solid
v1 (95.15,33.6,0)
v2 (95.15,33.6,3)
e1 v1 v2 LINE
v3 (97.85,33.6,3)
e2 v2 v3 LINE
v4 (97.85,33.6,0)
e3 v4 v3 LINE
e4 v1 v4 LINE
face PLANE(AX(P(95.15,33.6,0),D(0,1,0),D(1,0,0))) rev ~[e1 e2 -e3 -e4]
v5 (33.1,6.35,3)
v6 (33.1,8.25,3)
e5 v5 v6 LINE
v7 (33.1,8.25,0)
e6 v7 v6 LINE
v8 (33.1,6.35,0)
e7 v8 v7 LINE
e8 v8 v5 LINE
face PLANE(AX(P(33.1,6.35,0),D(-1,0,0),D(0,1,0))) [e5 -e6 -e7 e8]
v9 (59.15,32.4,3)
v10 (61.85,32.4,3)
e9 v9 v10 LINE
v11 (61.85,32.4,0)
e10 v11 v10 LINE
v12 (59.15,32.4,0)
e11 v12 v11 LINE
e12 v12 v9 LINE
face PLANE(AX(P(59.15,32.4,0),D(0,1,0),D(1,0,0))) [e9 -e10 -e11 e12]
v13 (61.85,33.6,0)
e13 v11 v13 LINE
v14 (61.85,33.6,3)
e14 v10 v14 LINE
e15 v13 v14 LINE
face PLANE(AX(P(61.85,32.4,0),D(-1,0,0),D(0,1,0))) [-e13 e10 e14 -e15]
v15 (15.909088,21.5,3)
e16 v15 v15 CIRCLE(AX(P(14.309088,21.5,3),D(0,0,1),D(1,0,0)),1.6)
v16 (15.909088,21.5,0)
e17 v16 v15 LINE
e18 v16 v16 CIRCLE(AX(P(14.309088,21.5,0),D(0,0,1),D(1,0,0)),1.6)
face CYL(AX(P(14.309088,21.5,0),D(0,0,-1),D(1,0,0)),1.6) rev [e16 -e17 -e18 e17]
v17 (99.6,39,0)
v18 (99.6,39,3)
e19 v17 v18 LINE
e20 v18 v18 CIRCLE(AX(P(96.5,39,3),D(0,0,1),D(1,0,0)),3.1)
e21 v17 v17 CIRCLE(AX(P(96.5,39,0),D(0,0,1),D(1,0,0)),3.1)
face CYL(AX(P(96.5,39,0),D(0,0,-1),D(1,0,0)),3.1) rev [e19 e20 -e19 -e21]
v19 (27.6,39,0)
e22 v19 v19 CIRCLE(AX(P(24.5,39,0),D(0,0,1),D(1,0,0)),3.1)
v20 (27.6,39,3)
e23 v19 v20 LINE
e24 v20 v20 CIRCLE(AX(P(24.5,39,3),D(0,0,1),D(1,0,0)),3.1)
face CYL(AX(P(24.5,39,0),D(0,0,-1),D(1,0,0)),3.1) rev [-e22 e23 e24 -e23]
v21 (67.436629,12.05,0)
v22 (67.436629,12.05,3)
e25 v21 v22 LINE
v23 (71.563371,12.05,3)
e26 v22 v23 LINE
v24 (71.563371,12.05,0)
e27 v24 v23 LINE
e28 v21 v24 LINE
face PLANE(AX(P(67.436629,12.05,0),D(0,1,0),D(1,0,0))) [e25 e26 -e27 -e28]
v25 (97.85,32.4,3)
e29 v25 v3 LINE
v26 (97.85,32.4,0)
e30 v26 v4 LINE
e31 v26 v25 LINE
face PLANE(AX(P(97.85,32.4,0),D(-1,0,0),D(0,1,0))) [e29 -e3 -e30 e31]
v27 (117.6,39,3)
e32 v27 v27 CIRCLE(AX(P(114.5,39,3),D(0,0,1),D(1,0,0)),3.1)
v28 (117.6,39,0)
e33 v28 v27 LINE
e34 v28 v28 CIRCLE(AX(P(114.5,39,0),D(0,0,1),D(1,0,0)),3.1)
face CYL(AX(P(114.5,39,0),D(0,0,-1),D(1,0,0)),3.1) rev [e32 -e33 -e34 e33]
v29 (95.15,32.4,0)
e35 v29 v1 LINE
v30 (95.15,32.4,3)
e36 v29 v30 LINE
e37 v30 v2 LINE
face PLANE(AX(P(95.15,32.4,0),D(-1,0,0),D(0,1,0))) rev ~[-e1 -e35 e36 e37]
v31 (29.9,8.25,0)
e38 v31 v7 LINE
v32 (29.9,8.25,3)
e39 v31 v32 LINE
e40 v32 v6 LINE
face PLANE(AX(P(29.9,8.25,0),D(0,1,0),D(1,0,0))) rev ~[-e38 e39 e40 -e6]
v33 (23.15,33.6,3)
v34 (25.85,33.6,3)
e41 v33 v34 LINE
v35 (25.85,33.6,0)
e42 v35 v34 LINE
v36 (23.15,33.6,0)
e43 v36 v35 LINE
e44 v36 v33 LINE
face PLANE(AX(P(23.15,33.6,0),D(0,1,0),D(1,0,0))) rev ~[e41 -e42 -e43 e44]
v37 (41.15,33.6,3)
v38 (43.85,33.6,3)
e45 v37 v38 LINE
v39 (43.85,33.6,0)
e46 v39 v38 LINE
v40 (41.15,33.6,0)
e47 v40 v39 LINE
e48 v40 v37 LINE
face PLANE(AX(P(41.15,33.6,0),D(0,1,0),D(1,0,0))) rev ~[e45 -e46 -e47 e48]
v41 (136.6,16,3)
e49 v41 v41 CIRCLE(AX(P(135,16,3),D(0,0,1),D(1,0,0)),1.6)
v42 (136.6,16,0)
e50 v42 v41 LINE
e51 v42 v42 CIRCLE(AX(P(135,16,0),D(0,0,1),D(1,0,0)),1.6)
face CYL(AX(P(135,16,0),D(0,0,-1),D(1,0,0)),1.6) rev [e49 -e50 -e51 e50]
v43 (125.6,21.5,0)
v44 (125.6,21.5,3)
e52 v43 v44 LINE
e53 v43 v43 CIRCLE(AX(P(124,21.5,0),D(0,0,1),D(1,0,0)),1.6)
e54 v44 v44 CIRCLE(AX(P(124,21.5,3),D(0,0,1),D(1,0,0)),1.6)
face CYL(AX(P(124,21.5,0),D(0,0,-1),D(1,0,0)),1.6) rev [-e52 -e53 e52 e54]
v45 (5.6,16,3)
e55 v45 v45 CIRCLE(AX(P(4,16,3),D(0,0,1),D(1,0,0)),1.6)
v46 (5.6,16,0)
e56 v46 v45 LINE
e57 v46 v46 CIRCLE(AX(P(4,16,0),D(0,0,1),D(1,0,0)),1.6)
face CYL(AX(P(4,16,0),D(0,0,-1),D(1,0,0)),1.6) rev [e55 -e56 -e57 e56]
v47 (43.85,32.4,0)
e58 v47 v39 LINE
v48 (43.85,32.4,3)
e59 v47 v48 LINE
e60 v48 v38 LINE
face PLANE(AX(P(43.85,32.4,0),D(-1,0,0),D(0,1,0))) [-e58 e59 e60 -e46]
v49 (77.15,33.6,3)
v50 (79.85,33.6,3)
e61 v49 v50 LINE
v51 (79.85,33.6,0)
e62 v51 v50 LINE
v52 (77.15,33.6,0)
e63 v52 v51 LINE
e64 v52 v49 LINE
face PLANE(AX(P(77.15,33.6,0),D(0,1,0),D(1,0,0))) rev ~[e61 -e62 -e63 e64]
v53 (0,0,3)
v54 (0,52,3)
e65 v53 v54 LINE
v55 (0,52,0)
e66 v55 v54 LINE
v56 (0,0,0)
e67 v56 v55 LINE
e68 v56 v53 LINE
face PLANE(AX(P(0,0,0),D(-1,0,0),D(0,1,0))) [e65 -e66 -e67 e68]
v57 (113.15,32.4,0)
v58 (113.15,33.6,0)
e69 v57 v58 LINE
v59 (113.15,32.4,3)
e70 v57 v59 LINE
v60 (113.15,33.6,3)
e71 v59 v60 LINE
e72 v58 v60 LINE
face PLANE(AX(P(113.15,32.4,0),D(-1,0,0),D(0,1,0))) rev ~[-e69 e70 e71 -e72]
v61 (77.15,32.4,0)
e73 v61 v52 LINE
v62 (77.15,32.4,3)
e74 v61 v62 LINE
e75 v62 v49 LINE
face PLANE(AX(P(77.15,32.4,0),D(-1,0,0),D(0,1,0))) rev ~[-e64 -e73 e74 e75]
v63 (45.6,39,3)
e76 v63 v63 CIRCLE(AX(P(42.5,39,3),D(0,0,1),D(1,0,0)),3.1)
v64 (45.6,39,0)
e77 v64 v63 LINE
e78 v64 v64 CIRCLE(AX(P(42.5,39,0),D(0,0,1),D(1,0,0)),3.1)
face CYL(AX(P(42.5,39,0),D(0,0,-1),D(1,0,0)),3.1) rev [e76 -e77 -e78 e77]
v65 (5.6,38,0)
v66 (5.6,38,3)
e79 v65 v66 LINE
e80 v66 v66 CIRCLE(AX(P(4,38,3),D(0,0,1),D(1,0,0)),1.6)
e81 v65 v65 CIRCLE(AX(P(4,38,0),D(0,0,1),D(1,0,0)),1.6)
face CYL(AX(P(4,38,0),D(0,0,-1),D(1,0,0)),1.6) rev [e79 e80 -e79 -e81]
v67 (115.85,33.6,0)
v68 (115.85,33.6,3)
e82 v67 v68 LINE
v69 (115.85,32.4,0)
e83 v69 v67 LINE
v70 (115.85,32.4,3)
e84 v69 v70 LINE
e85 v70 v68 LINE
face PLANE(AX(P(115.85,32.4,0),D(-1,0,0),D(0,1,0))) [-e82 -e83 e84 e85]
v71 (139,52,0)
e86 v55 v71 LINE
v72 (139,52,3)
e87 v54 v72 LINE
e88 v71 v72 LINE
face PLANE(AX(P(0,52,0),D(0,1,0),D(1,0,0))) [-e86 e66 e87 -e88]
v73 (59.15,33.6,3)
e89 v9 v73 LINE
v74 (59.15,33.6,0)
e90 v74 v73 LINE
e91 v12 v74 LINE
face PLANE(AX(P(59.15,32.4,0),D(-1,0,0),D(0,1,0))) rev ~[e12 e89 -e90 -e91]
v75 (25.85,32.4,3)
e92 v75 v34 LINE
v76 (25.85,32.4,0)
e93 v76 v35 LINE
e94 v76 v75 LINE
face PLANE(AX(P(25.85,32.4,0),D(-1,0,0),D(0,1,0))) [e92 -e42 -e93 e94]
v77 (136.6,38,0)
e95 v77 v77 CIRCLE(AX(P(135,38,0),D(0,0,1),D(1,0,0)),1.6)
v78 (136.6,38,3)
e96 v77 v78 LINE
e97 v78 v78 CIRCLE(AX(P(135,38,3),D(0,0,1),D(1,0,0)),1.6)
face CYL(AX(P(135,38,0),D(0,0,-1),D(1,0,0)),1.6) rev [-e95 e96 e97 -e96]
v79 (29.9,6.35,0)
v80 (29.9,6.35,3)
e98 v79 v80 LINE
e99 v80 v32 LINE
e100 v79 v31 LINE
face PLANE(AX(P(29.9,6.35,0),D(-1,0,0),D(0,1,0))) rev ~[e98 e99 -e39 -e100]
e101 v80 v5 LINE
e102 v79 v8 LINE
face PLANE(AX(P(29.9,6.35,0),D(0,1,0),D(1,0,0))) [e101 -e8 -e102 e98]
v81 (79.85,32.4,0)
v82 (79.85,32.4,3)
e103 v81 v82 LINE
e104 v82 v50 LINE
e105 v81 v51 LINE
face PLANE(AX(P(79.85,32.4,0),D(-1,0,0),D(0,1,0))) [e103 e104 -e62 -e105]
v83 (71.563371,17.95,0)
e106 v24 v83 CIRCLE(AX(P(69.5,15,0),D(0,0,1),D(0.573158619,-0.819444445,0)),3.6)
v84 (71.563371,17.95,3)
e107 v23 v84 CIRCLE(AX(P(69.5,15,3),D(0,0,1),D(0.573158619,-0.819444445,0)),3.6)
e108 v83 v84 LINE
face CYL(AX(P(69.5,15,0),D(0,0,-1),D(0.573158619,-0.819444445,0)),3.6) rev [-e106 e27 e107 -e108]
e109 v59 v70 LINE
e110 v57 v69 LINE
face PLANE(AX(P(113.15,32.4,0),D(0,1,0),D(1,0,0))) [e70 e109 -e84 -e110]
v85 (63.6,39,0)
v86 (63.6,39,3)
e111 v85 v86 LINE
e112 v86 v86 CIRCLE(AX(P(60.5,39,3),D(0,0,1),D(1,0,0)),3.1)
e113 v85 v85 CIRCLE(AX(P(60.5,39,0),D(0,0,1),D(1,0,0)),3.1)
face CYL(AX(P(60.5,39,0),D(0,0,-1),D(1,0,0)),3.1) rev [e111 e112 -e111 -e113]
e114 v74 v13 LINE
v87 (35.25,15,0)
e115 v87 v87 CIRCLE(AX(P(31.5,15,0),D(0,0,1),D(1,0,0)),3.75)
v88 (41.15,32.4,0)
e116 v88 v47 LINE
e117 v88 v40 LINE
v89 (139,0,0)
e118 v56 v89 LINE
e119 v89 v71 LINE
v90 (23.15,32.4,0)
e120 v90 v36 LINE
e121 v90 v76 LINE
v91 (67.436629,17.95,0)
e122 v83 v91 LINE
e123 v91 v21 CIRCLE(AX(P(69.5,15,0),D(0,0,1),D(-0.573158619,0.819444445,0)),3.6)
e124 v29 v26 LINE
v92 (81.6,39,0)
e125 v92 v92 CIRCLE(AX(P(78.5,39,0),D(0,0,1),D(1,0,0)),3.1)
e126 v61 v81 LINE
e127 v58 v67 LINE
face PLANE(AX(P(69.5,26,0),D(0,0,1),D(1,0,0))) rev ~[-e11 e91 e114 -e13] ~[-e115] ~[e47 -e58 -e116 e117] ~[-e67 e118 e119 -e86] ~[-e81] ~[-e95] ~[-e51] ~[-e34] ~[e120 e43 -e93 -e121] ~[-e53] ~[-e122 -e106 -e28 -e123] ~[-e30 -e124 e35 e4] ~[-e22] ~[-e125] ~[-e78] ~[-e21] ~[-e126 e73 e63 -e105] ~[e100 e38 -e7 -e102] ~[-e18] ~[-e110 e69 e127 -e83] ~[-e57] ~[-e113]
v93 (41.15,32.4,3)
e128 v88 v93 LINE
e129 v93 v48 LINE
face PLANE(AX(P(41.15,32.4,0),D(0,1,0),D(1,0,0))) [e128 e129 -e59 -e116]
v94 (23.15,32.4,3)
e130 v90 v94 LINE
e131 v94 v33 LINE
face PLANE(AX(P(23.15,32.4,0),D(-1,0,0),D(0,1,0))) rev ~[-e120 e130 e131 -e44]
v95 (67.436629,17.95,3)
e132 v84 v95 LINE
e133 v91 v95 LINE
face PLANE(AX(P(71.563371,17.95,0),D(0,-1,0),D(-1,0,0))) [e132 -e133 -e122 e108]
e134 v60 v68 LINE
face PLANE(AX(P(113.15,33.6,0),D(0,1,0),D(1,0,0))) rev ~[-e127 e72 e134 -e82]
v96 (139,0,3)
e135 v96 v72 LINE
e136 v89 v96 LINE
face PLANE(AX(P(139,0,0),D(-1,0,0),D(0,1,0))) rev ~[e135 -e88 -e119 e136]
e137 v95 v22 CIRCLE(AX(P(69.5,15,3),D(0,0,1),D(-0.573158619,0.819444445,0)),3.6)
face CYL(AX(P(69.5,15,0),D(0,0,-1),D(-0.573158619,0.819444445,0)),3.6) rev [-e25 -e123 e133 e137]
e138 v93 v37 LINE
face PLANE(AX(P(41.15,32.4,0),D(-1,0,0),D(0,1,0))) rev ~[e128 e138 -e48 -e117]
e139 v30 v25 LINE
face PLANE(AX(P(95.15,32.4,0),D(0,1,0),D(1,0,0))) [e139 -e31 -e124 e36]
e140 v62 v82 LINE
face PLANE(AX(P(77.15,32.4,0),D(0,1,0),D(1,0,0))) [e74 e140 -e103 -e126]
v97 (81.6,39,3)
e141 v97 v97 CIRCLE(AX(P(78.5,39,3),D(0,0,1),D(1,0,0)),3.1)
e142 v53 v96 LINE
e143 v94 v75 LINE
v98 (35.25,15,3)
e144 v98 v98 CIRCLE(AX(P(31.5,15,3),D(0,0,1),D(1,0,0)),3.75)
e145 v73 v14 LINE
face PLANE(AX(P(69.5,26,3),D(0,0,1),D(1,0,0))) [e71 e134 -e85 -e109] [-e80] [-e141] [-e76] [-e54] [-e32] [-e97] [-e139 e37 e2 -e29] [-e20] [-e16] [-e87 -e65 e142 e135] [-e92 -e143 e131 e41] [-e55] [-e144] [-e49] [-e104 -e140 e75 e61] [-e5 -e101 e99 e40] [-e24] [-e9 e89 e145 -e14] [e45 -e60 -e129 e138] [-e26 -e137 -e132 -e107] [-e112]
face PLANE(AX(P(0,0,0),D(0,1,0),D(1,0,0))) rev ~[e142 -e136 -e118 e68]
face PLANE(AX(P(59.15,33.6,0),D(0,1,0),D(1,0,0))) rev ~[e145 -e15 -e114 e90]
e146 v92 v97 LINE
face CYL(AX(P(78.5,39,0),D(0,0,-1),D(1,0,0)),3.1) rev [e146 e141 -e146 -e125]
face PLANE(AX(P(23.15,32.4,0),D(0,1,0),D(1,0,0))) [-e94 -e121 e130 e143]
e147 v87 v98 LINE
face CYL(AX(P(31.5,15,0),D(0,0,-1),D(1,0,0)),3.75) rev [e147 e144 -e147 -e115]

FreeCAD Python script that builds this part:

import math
import FreeCAD as App
import Part
import Sketcher
from FreeCAD import Vector


def add_polygon(sketch, points):
    """Adds a closed chain of lines whose ends are joined by coincident constraints."""
    first, n = sketch.GeometryCount, len(points)
    for a, b in zip(points, points[1:] + points[:1]):
        sketch.addGeometry(Part.LineSegment(App.Vector(*a, 0), App.Vector(*b, 0)), False)
    for i in range(n):
        sketch.addConstraint(Sketcher.Constraint("Coincident", first + i, 2, first + (i + 1) % n, 1))

doc = App.newDocument("Part")
body = doc.addObject("PartDesign::Body", "Body")

# Sketch on XY plane
sketch1 = doc.addObject("Sketcher::SketchObject", "Sketch")
body.addObject(sketch1)
sketch1.AttachmentSupport = (doc.XY_Plane, [""])
sketch1.MapMode = "FlatFace"
add_polygon(sketch1, [(0, 52), (0, 0), (139, 0), (139, 52)])  # lines 0-3
add_polygon(sketch1, [(33.1, 6.3), (29.9, 6.3), (29.9, 8.2), (33.1, 8.2)])  # lines 4-7
sketch1.addGeometry(Part.Circle(Vector(31.5, 15, 0), Vector(0, 0, 1), 3.8), False)  # 8
sketch1.addGeometry(Part.Circle(Vector(4, 16, 0), Vector(0, 0, 1), 1.6), False)  # 9
sketch1.addGeometry(Part.Circle(Vector(14.3, 21.5, 0), Vector(0, 0, 1), 1.6), False)  # 10
sketch1.addGeometry(Part.LineSegment(Vector(71.6, 12.1, 0), Vector(67.4, 12.1, 0)), False)  # 11
sketch1.addGeometry(Part.ArcOfCircle(Part.Circle(Vector(69.5, 15, 0), Vector(0, 0, 1), 3.6), math.radians(125), math.radians(235)), False)  # 12
sketch1.addGeometry(Part.LineSegment(Vector(67.4, 17.9, 0), Vector(71.6, 17.9, 0)), False)  # 13
sketch1.addGeometry(Part.ArcOfCircle(Part.Circle(Vector(69.5, 15, 0), Vector(0, 0, 1), 3.6), math.radians(-55), math.radians(55)), False)  # 14
sketch1.addGeometry(Part.Circle(Vector(135, 16, 0), Vector(0, 0, 1), 1.6), False)  # 15
sketch1.addGeometry(Part.Circle(Vector(124, 21.5, 0), Vector(0, 0, 1), 1.6), False)  # 16
add_polygon(sketch1, [(25.9, 32.4), (23.1, 32.4), (23.1, 33.6), (25.9, 33.6)])  # lines 17-20
add_polygon(sketch1, [(43.9, 32.4), (41.1, 32.4), (41.1, 33.6), (43.9, 33.6)])  # lines 21-24
add_polygon(sketch1, [(61.9, 32.4), (59.1, 32.4), (59.1, 33.6), (61.9, 33.6)])  # lines 25-28
sketch1.addGeometry(Part.Circle(Vector(4, 38, 0), Vector(0, 0, 1), 1.6), False)  # 29
sketch1.addGeometry(Part.Circle(Vector(24.5, 39, 0), Vector(0, 0, 1), 3.1), False)  # 30
sketch1.addGeometry(Part.Circle(Vector(42.5, 39, 0), Vector(0, 0, 1), 3.1), False)  # 31
sketch1.addGeometry(Part.Circle(Vector(60.5, 39, 0), Vector(0, 0, 1), 3.1), False)  # 32
add_polygon(sketch1, [(79.8, 32.4), (77.2, 32.4), (77.2, 33.6), (79.8, 33.6)])  # lines 33-36
add_polygon(sketch1, [(97.8, 32.4), (95.2, 32.4), (95.2, 33.6), (97.8, 33.6)])  # lines 37-40
add_polygon(sketch1, [(115.8, 32.4), (113.2, 32.4), (113.2, 33.6), (115.8, 33.6)])  # lines 41-44
sketch1.addGeometry(Part.Circle(Vector(78.5, 39, 0), Vector(0, 0, 1), 3.1), False)  # 45
sketch1.addGeometry(Part.Circle(Vector(96.5, 39, 0), Vector(0, 0, 1), 3.1), False)  # 46
sketch1.addGeometry(Part.Circle(Vector(114.5, 39, 0), Vector(0, 0, 1), 3.1), False)  # 47
sketch1.addGeometry(Part.Circle(Vector(135, 38, 0), Vector(0, 0, 1), 1.6), False)  # 48
sketch1.addConstraint([
    Sketcher.Constraint("Coincident", 11, 2, 12, 2),
    Sketcher.Constraint("Coincident", 12, 1, 13, 1),
    Sketcher.Constraint("Coincident", 13, 2, 14, 2),
    Sketcher.Constraint("Coincident", 14, 1, 11, 1),
    Sketcher.Constraint("Vertical", 0),
    Sketcher.Constraint("Horizontal", 1),
    Sketcher.Constraint("Vertical", 2),
    Sketcher.Constraint("Horizontal", 3),
    Sketcher.Constraint("Horizontal", 4),
    Sketcher.Constraint("Vertical", 5),
    Sketcher.Constraint("Horizontal", 6),
    Sketcher.Constraint("Vertical", 7),
    Sketcher.Constraint("Horizontal", 11),
    Sketcher.Constraint("Horizontal", 13),
    Sketcher.Constraint("Horizontal", 17),
    Sketcher.Constraint("Vertical", 18),
    Sketcher.Constraint("Horizontal", 19),
    Sketcher.Constraint("Vertical", 20),
    Sketcher.Constraint("Horizontal", 21),
    Sketcher.Constraint("Vertical", 22),
    Sketcher.Constraint("Horizontal", 23),
    Sketcher.Constraint("Vertical", 24),
    Sketcher.Constraint("Horizontal", 25),
    Sketcher.Constraint("Vertical", 26),
    Sketcher.Constraint("Horizontal", 27),
    Sketcher.Constraint("Vertical", 28),
    Sketcher.Constraint("Horizontal", 33),
    Sketcher.Constraint("Vertical", 34),
    Sketcher.Constraint("Horizontal", 35),
    Sketcher.Constraint("Vertical", 36),
    Sketcher.Constraint("Horizontal", 37),
    Sketcher.Constraint("Vertical", 38),
    Sketcher.Constraint("Horizontal", 39),
    Sketcher.Constraint("Vertical", 40),
    Sketcher.Constraint("Horizontal", 41),
    Sketcher.Constraint("Vertical", 42),
    Sketcher.Constraint("Horizontal", 43),
    Sketcher.Constraint("Vertical", 44),
    Sketcher.Constraint("Coincident", 0, 2, -1, 1),
    Sketcher.Constraint("Coincident", 14, 3, 12, 3),
    Sketcher.Constraint("Equal", 9, 10),
    Sketcher.Constraint("Equal", 12, 14),
    Sketcher.Constraint("Equal", 10, 15),
    Sketcher.Constraint("Equal", 15, 16),
    Sketcher.Constraint("Equal", 16, 29),
    Sketcher.Constraint("Equal", 30, 31),
    Sketcher.Constraint("Equal", 31, 32),
    Sketcher.Constraint("Equal", 32, 45),
    Sketcher.Constraint("Equal", 45, 46),
    Sketcher.Constraint("Equal", 46, 47),
    Sketcher.Constraint("Equal", 29, 48),
    Sketcher.Constraint("Horizontal", 8, 3, 12, 3),
    Sketcher.Constraint("Horizontal", 9, 3, 15, 3),
    Sketcher.Constraint("Horizontal", 10, 3, 16, 3),
    Sketcher.Constraint("Horizontal", 30, 3, 31, 3),
    Sketcher.Constraint("Horizontal", 31, 3, 32, 3),
    Sketcher.Constraint("Horizontal", 32, 3, 45, 3),
    Sketcher.Constraint("Horizontal", 45, 3, 46, 3),
    Sketcher.Constraint("Horizontal", 46, 3, 47, 3),
    Sketcher.Constraint("Horizontal", 29, 3, 48, 3),
    Sketcher.Constraint("Horizontal", 20, 2, 21, 2),
    Sketcher.Constraint("Horizontal", 19, 2, 22, 2),
    Sketcher.Constraint("Horizontal", 24, 2, 25, 2),
    Sketcher.Constraint("Horizontal", 23, 2, 26, 2),
    Sketcher.Constraint("Horizontal", 28, 2, 33, 2),
    Sketcher.Constraint("Horizontal", 27, 2, 34, 2),
    Sketcher.Constraint("Horizontal", 36, 2, 37, 2),
    Sketcher.Constraint("Horizontal", 35, 2, 38, 2),
    Sketcher.Constraint("Horizontal", 40, 2, 41, 2),
    Sketcher.Constraint("Horizontal", 39, 2, 42, 2),
    Sketcher.Constraint("Vertical", 9, 3, 29, 3),
    Sketcher.Constraint("Vertical", 15, 3, 48, 3),
    Sketcher.Constraint("Vertical", 11, 2, 12, 1),
    Sketcher.Constraint("Equal", 19, 21),
    Sketcher.Constraint("Equal", 23, 25),
    Sketcher.Constraint("Equal", 27, 33),
    Sketcher.Constraint("Equal", 35, 37),
    Sketcher.Constraint("Equal", 39, 41),
    Sketcher.Constraint("Diameter", 8, 7.5),
    Sketcher.Constraint("Diameter", 9, 3.2),
    Sketcher.Constraint("Diameter", 30, 6.2),
    Sketcher.Constraint("Radius", 12, 3.6),
    Sketcher.Constraint("DistanceX", 1, 1, 1, 2, 139.0),
    Sketcher.Constraint("DistanceY", 0, 2, 0, 1, 52.0),
    Sketcher.Constraint("DistanceX", 4, 2, 4, 1, 3.2),
    Sketcher.Constraint("DistanceX", 17, 2, 17, 1, 2.7),
    Sketcher.Constraint("DistanceY", 5, 1, 5, 2, 1.9),
    Sketcher.Constraint("DistanceY", 18, 1, 18, 2, 1.2),
    Sketcher.Constraint("DistanceY", -1, 1, 8, 3, 15.0),
    Sketcher.Constraint("DistanceX", -1, 1, 9, 3, 4.0),
    Sketcher.Constraint("DistanceY", -1, 1, 9, 3, 16.0),
    Sketcher.Constraint("DistanceX", -1, 1, 15, 3, 135.0),
    Sketcher.Constraint("DistanceX", -1, 1, 16, 3, 124.0),
    Sketcher.Constraint("DistanceY", -1, 1, 29, 3, 38.0),
    Sketcher.Constraint("DistanceY", -1, 1, 30, 3, 39.0),
    Sketcher.Constraint("DistanceX", 8, 3, 12, 3, 38.0),
    Sketcher.Constraint("DistanceX", 30, 3, 8, 3, 7.0),
    Sketcher.Constraint("DistanceX", 30, 3, 31, 3, 18.0),
    Sketcher.Constraint("DistanceX", 31, 3, 32, 3, 18.0),
    Sketcher.Constraint("DistanceX", 32, 3, 45, 3, 18.0),
    Sketcher.Constraint("DistanceX", 45, 3, 46, 3, 18.0),
    Sketcher.Constraint("DistanceX", 46, 3, 47, 3, 18.0),
    Sketcher.Constraint("DistanceX", 17, 2, 21, 2, 18.0),
    Sketcher.Constraint("DistanceX", 33, 2, 37, 2, 18.0),
    Sketcher.Constraint("DistanceX", 39, 2, 43, 2, 18.0),
    Sketcher.Constraint("DistanceX", -1, 1, 8, 3, 31.5),
    Sketcher.Constraint("DistanceY", -1, 1, 10, 3, 21.5),
    Sketcher.Constraint("DistanceX", -1, 1, 4, 2, 29.9),
    Sketcher.Constraint("DistanceY", -1, 1, 17, 2, 32.4),
    Sketcher.Constraint("DistanceY", 6, 2, 11, 2, 3.8),
    Sketcher.Constraint("DistanceY", 11, 2, 12, 1, 5.9),
    Sketcher.Constraint("DistanceX", 24, 2, 25, 2, 15.3),
    Sketcher.Constraint("DistanceX", 28, 2, 33, 2, 15.3),
    Sketcher.Constraint("DistanceX", -1, 1, 17, 2, 23.15),
    Sketcher.Constraint("DistanceX", -1, 1, 10, 3, 14.309088),
])
pad1 = doc.addObject("PartDesign::Pad", "Pad")
body.addObject(pad1)
pad1.Profile = sketch1
pad1.Length = 3

doc.recompute()
